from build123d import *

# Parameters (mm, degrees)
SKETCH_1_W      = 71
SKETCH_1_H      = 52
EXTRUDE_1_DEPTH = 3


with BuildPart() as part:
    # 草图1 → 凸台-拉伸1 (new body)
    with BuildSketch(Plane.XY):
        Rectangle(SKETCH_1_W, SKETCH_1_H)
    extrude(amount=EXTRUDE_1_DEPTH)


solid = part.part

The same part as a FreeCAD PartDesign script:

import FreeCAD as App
import Part
import Sketcher
Q = App.Units.Quantity

doc = App.newDocument("Part")
body = doc.addObject("PartDesign::Body", "Body")

# Sketch on XY plane
sketch1 = doc.addObject("Sketcher::SketchObject", "Sketch")
body.addObject(sketch1)
sketch1.AttachmentSupport = (doc.XY_Plane, [""])
sketch1.MapMode = "FlatFace"
sketch1.addGeometry([
    Part.LineSegment(App.Vector(-35.5, 26, 0), App.Vector(-35.5, -26, 0)),
    Part.LineSegment(App.Vector(-35.5, -26, 0), App.Vector(35.5, -26, 0)),
    Part.LineSegment(App.Vector(35.5, -26, 0), App.Vector(35.5, 26, 0)),
    Part.LineSegment(App.Vector(35.5, 26, 0), App.Vector(-35.5, 26, 0)),
], False)
sketch1.addConstraint([
    Sketcher.Constraint("Coincident", 0, 2, 1, 1),
    Sketcher.Constraint("Coincident", 1, 2, 2, 1),
    Sketcher.Constraint("Coincident", 2, 2, 3, 1),
    Sketcher.Constraint("Coincident", 3, 2, 0, 1),
    Sketcher.Constraint("Vertical", 0),
    Sketcher.Constraint("Horizontal", 1),
    Sketcher.Constraint("Vertical", 2),
    Sketcher.Constraint("Horizontal", 3),
    Sketcher.Constraint("Symmetric", 0, 2, 2, 2, -1, 1),
    Sketcher.Constraint("DistanceX", 1, 1, 1, 2, Q("71 mm")),
    Sketcher.Constraint("DistanceY", 0, 2, 0, 1, Q("52 mm")),
])
pad1 = doc.addObject("PartDesign::Pad", "Pad")
body.addObject(pad1)
pad1.Profile = sketch1
pad1.Length = 3

doc.recompute()
